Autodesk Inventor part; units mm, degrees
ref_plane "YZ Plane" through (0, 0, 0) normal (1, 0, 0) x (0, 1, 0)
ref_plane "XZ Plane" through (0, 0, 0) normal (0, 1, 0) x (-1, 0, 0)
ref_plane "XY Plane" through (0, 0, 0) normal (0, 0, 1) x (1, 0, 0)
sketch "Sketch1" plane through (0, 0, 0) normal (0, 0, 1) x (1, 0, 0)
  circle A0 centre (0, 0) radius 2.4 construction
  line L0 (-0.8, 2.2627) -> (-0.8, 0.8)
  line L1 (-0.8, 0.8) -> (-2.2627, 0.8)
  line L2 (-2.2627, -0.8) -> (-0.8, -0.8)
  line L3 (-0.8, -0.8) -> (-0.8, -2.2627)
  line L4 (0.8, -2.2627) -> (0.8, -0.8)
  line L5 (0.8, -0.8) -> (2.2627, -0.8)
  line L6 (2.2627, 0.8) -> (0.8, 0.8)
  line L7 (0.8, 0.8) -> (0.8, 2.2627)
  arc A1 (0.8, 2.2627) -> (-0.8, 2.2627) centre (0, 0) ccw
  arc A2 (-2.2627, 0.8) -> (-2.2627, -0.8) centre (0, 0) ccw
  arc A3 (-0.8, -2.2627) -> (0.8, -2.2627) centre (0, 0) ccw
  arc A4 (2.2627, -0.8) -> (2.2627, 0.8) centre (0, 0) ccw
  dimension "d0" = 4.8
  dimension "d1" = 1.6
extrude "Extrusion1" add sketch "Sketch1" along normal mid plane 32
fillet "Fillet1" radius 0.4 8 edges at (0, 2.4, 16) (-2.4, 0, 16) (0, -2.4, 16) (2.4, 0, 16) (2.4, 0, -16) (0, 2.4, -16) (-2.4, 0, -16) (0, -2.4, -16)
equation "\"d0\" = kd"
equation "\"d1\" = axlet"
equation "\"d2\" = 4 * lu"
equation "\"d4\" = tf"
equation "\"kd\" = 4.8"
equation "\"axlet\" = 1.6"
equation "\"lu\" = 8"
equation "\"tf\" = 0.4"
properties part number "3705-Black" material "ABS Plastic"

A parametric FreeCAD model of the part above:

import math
import FreeCAD as App
import Part
import Sketcher

V = App.Vector


def edges_at(feature, points):
    """Names of the edges that pass closest to the given points."""
    edges = feature.Shape.Edges
    near = lambda p: min(range(len(edges)), key=lambda i: edges[i].distToShape(Part.Vertex(*p))[0])
    return sorted({f"Edge{near(p) + 1}" for p in points})

doc = App.newDocument("Part")
body = doc.addObject("PartDesign::Body", "Body")

# Sketch on XY plane
sketch1 = doc.addObject("Sketcher::SketchObject", "Sketch")
body.addObject(sketch1)
sketch1.AttachmentSupport = (doc.XY_Plane, [""])
sketch1.MapMode = "FlatFace"
sketch1.addGeometry(Part.ArcOfCircle(Part.Circle(V(0, 0, 0), V(0, 0, 1), 2.4), math.radians(71), math.radians(109)), False)
sketch1.addGeometry(Part.LineSegment(V(-0.8, 2.3, 0), V(-0.8, 0.8, 0)), False)
sketch1.addGeometry(Part.LineSegment(V(-0.8, 0.8, 0), V(-2.3, 0.8, 0)), False)
sketch1.addGeometry(Part.ArcOfCircle(Part.Circle(V(0, 0, 0), V(0, 0, 1), 2.4), math.radians(161), math.radians(199)), False)
sketch1.addGeometry(Part.LineSegment(V(-2.3, -0.8, 0), V(-0.8, -0.8, 0)), False)
sketch1.addGeometry(Part.LineSegment(V(-0.8, -0.8, 0), V(-0.8, -2.3, 0)), False)
sketch1.addGeometry(Part.ArcOfCircle(Part.Circle(V(0, 0, 0), V(0, 0, 1), 2.4), math.radians(-109), math.radians(-71)), False)
sketch1.addGeometry(Part.LineSegment(V(0.8, -2.3, 0), V(0.8, -0.8, 0)), False)
sketch1.addGeometry(Part.LineSegment(V(0.8, -0.8, 0), V(2.3, -0.8, 0)), False)
sketch1.addGeometry(Part.ArcOfCircle(Part.Circle(V(0, 0, 0), V(0, 0, 1), 2.4), math.radians(-19), math.radians(19)), False)
sketch1.addGeometry(Part.LineSegment(V(2.3, 0.8, 0), V(0.8, 0.8, 0)), False)
sketch1.addGeometry(Part.LineSegment(V(0.8, 0.8, 0), V(0.8, 2.3, 0)), False)
sketch1.addConstraint(Sketcher.Constraint("Coincident", 0, 2, 1, 1))
sketch1.addConstraint(Sketcher.Constraint("Coincident", 1, 2, 2, 1))
sketch1.addConstraint(Sketcher.Constraint("Coincident", 2, 2, 3, 1))
sketch1.addConstraint(Sketcher.Constraint("Coincident", 3, 2, 4, 1))
sketch1.addConstraint(Sketcher.Constraint("Coincident", 4, 2, 5, 1))
sketch1.addConstraint(Sketcher.Constraint("Coincident", 5, 2, 6, 1))
sketch1.addConstraint(Sketcher.Constraint("Coincident", 6, 2, 7, 1))
sketch1.addConstraint(Sketcher.Constraint("Coincident", 7, 2, 8, 1))
sketch1.addConstraint(Sketcher.Constraint("Coincident", 8, 2, 9, 1))
sketch1.addConstraint(Sketcher.Constraint("Coincident", 9, 2, 10, 1))
sketch1.addConstraint(Sketcher.Constraint("Coincident", 10, 2, 11, 1))
sketch1.addConstraint(Sketcher.Constraint("Coincident", 11, 2, 0, 1))
sketch1.addConstraint(Sketcher.Constraint("Vertical", 1))
sketch1.addConstraint(Sketcher.Constraint("Horizontal", 2))
sketch1.addConstraint(Sketcher.Constraint("Horizontal", 4))
sketch1.addConstraint(Sketcher.Constraint("Vertical", 5))
sketch1.addConstraint(Sketcher.Constraint("Vertical", 7))
sketch1.addConstraint(Sketcher.Constraint("Horizontal", 8))
sketch1.addConstraint(Sketcher.Constraint("Horizontal", 10))
sketch1.addConstraint(Sketcher.Constraint("Vertical", 11))
sketch1.addConstraint(Sketcher.Constraint("Coincident", 0, 3, -1, 1))
sketch1.addConstraint(Sketcher.Constraint("Coincident", 3, 3, -1, 1))
sketch1.addConstraint(Sketcher.Constraint("Coincident", 6, 3, -1, 1))
sketch1.addConstraint(Sketcher.Constraint("Coincident", 9, 3, -1, 1))
sketch1.addConstraint(Sketcher.Constraint("Equal", 0, 3))
sketch1.addConstraint(Sketcher.Constraint("Equal", 3, 6))
sketch1.addConstraint(Sketcher.Constraint("Equal", 6, 9))
sketch1.addConstraint(Sketcher.Constraint("Symmetric", 1, 2, 7, 2, -1, 1))
sketch1.addConstraint(Sketcher.Constraint("Symmetric", 4, 2, 10, 2, -1, 1))
sketch1.addConstraint(Sketcher.Constraint("Symmetric", 4, 2, 7, 2, -2))
sketch1.addConstraint(Sketcher.Constraint("Equal", 10, 1))
sketch1.addConstraint(Sketcher.Constraint("Radius", 0, 2.4))
sketch1.addConstraint(Sketcher.Constraint("DistanceY", 3, 2, 2, 2, 1.6))
pad1 = doc.addObject("PartDesign::Pad", "Pad")
body.addObject(pad1)
pad1.Profile = sketch1
pad1.Length = 32
pad1.Midplane = True
doc.recompute()

fillet = doc.addObject("PartDesign::Fillet", "Fillet")
body.addObject(fillet)
fillet.Base = (pad1, edges_at(pad1, [
    (0, 2.4, 16),
    (-2.4, 0, 16),
    (0, -2.4, 16),
    (2.4, 0, 16),
    (2.4, 0, -16),
    (0, 2.4, -16),
    (-2.4, 0, -16),
    (0, -2.4, -16),
]))
fillet.Radius = 0.4

doc.recompute()
